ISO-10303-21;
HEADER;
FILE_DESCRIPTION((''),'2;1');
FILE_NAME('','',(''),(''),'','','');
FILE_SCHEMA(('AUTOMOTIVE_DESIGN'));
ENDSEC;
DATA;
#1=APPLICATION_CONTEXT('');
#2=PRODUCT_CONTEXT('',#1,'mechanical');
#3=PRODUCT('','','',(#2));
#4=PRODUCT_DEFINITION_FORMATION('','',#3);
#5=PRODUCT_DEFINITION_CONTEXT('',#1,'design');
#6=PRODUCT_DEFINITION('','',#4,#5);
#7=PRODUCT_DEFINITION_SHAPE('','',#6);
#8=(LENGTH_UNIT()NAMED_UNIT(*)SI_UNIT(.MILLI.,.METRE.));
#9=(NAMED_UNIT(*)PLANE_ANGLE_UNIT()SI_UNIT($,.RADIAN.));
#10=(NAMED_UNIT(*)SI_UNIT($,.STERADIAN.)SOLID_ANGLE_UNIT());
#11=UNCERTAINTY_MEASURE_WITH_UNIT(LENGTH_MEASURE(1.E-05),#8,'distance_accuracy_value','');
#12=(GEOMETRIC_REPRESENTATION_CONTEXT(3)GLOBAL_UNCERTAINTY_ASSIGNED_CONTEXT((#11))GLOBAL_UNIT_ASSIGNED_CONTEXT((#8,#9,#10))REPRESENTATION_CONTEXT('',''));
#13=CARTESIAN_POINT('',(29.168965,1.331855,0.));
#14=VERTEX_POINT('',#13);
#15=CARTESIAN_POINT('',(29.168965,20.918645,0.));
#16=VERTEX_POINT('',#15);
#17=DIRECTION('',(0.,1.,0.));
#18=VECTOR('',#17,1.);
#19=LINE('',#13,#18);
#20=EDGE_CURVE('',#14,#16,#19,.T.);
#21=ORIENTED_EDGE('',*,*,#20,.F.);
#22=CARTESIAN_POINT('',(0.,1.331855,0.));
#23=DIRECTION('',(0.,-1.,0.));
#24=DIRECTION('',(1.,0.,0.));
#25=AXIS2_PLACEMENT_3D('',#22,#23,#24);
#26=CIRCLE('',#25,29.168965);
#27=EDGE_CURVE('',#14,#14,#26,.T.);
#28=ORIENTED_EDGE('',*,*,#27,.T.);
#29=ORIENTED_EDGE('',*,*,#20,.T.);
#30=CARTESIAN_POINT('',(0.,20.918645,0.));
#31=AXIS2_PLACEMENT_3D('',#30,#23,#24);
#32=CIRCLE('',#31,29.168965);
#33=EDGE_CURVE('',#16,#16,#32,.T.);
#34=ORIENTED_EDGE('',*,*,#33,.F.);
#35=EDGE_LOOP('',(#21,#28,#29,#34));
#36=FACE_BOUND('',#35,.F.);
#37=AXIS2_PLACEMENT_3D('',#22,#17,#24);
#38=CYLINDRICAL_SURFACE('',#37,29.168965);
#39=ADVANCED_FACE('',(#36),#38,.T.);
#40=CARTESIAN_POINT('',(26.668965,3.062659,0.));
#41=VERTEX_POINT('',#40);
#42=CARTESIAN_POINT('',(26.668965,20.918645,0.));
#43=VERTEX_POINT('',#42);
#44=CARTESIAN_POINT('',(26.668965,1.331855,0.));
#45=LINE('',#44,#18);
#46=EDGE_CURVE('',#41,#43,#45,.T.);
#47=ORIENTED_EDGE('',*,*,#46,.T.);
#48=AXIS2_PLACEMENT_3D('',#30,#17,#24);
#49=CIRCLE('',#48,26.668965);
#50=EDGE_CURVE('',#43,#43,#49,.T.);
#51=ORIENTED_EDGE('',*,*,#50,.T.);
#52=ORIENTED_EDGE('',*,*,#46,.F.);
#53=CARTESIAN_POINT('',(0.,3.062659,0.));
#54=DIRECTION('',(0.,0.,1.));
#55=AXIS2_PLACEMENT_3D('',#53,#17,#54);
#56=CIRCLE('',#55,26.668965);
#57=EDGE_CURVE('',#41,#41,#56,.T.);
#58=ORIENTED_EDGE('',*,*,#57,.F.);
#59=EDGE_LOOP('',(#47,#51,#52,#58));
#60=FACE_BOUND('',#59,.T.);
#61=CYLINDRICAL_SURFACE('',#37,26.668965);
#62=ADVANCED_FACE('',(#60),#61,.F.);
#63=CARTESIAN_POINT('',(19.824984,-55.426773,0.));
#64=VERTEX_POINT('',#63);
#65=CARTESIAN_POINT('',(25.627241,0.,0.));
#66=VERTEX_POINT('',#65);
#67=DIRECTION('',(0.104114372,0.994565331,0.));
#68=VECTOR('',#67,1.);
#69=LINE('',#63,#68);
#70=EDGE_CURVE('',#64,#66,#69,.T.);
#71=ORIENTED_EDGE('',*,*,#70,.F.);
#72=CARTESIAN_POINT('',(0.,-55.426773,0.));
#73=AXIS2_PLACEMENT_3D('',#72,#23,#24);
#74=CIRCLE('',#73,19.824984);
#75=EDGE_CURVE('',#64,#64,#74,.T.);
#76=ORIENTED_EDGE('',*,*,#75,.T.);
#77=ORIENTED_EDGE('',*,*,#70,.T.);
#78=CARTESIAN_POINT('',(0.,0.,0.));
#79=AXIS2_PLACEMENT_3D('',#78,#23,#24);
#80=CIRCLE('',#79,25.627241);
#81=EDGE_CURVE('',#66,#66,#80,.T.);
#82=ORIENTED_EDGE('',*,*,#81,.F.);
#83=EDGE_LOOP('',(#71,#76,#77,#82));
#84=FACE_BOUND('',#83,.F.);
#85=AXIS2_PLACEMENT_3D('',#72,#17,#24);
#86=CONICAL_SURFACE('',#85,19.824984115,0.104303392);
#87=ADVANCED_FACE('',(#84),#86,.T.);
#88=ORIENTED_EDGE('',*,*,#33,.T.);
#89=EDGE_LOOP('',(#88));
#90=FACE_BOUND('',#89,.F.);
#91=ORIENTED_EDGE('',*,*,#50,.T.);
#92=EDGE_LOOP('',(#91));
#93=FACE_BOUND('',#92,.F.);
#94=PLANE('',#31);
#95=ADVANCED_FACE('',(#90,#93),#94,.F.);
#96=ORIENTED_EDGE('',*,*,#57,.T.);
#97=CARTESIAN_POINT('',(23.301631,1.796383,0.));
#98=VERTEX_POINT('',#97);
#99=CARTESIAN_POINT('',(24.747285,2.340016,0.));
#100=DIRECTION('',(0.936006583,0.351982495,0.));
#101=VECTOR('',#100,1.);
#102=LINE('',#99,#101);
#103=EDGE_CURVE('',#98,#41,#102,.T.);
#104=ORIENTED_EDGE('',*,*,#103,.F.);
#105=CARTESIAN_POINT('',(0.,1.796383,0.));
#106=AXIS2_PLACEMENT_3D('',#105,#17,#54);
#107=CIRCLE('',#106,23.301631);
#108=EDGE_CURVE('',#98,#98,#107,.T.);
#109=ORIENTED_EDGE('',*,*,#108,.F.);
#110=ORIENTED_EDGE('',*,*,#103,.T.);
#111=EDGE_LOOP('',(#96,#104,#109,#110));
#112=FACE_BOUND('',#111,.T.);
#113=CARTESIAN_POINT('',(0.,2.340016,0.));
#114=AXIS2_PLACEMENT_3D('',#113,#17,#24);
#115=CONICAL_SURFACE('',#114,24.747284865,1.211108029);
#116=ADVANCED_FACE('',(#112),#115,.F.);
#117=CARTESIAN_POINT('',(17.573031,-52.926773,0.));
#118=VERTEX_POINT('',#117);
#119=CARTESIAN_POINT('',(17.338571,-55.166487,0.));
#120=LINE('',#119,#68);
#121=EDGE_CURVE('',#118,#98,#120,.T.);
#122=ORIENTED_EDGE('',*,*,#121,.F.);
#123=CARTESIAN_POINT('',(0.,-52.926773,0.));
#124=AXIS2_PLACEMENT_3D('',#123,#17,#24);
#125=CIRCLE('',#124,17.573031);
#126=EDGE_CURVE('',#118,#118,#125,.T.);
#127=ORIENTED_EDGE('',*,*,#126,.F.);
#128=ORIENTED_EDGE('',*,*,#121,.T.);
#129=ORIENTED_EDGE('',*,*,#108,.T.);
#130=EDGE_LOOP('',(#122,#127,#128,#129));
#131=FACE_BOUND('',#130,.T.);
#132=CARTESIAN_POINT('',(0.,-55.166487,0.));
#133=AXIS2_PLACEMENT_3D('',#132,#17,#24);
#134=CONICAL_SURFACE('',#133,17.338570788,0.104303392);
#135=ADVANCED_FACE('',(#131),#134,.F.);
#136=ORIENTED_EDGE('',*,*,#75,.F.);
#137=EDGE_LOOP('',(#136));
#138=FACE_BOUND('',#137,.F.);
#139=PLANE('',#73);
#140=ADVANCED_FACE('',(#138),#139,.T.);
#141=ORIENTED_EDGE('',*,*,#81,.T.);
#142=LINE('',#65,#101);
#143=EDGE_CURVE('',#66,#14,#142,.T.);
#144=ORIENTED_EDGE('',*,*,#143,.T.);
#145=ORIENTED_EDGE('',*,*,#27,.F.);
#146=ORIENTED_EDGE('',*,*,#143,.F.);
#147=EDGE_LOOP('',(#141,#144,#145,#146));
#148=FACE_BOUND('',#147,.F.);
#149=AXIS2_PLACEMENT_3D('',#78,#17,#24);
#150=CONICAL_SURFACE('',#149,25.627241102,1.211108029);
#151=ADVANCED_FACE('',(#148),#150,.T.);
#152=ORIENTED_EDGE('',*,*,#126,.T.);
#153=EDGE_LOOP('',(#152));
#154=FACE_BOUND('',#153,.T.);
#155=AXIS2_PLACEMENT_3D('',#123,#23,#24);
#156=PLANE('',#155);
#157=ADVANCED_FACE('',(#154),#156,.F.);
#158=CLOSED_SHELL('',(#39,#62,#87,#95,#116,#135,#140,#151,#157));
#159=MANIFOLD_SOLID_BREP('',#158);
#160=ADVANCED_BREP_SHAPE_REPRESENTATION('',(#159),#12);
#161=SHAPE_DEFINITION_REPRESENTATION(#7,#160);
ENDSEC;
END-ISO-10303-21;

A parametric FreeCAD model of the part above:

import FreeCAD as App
import Part
import Sketcher
from FreeCAD import Vector


def faces_at(feature, points):
    """Names of the faces that lie closest to the given points."""
    faces = feature.Shape.Faces
    near = lambda p: min(range(len(faces)), key=lambda i: faces[i].distToShape(Part.Vertex(*p))[0])
    return sorted({f"Face{near(p) + 1}" for p in points})

doc = App.newDocument("Part")
body = doc.addObject("PartDesign::Body", "Body")

# Sketch on XY plane
sketch1 = body.newObject("Sketcher::SketchObject", "Sketch")
sketch1.AttachmentSupport = (doc.getObject("XY_Plane"), [""])
sketch1.MapMode = "FlatFace"
sketch1.addGeometry([
    Part.LineSegment(Vector(29.2, 20.9, 0), Vector(0, 20.9, 0)),  # 0
    Part.LineSegment(Vector(0, 20.9, 0), Vector(0, -55.4, 0)),  # 1
    Part.LineSegment(Vector(0, -55.4, 0), Vector(19.8, -55.4, 0)),  # 2
    Part.LineSegment(Vector(19.8, -55.4, 0), Vector(25.6, 0, 0)),  # 3
    Part.LineSegment(Vector(25.6, 0, 0), Vector(29.2, 1.3, 0)),  # 4
    Part.LineSegment(Vector(29.2, 1.3, 0), Vector(29.2, 20.9, 0)),  # 5
], False)
sketch1.addConstraint([
    Sketcher.Constraint("Coincident", 0, 2, 1, 1),
    Sketcher.Constraint("Coincident", 1, 2, 2, 1),
    Sketcher.Constraint("Coincident", 2, 2, 3, 1),
    Sketcher.Constraint("Coincident", 3, 2, 4, 1),
    Sketcher.Constraint("Coincident", 4, 2, 5, 1),
    Sketcher.Constraint("Coincident", 5, 2, 0, 1),
    Sketcher.Constraint("Horizontal", 0),
    Sketcher.Constraint("Vertical", 1),
    Sketcher.Constraint("Horizontal", 2),
    Sketcher.Constraint("Vertical", 5),
    Sketcher.Constraint("PointOnObject", 0, 2, -2),
    Sketcher.Constraint("PointOnObject", 3, 2, -1),
    Sketcher.Constraint("DistanceY", 5, 1, 5, 2, 19.58679),
    Sketcher.Constraint("DistanceX", 0, 2, 0, 1, 29.168965),
    Sketcher.Constraint("DistanceX", 2, 1, 2, 2, 19.824984),
    Sketcher.Constraint("DistanceY", 1, 2, 1, 1, 76.345418),
    Sketcher.Constraint("DistanceX", -1, 1, 3, 2, 25.627241),
    Sketcher.Constraint("Distance", 3, 55.729645),
])
revolution = body.newObject("PartDesign::Revolution", "Revolution")
revolution.Profile = sketch1
revolution.ReferenceAxis = (sketch1, ["V_Axis"])
revolution.Angle = 360
doc.recompute()

thickness = body.newObject("PartDesign::Thickness", "Thickness")
thickness.Base = (revolution, faces_at(revolution, [(0, 20.919, 0)]))
thickness.Value = 2.5
thickness.Reversed = True
thickness.Join = "Intersection"

doc.recompute()
